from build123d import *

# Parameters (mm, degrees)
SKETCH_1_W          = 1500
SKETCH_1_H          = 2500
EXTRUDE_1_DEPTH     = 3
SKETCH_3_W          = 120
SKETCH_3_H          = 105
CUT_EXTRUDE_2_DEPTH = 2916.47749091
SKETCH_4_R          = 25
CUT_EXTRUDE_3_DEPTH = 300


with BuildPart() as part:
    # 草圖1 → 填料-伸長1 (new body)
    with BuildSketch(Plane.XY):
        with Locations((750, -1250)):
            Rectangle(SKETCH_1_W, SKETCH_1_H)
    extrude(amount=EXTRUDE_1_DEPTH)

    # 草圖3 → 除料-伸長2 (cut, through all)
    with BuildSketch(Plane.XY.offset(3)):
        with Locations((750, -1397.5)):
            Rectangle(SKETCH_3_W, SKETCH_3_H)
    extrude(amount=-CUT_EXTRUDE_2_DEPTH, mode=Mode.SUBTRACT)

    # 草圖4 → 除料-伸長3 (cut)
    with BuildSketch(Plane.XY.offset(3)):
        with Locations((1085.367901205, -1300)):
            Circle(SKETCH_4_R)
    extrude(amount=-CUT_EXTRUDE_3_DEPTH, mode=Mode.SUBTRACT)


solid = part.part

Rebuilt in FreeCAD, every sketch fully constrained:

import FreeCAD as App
import Part
import Sketcher


def add_polygon(sketch, points):
    """Adds a closed chain of lines whose ends are joined by coincident constraints."""
    first, n = sketch.GeometryCount, len(points)
    for a, b in zip(points, points[1:] + points[:1]):
        sketch.addGeometry(Part.LineSegment(App.Vector(*a, 0), App.Vector(*b, 0)), False)
    for i in range(n):
        sketch.addConstraint(Sketcher.Constraint("Coincident", first + i, 2, first + (i + 1) % n, 1))

doc = App.newDocument("Part")
body = doc.addObject("PartDesign::Body", "Body")

sketch1 = body.newObject("Sketcher::SketchObject", "Sketch")
sketch1.AttachmentSupport = (doc.getObject("XY_Plane"), [""])
sketch1.MapMode = "FlatFace"
add_polygon(sketch1, [(0, 0), (0, -2500), (1500, -2500), (1500, 0)])
sketch1.addConstraint(Sketcher.Constraint("Vertical", 0))
sketch1.addConstraint(Sketcher.Constraint("Horizontal", 1))
sketch1.addConstraint(Sketcher.Constraint("Vertical", 2))
sketch1.addConstraint(Sketcher.Constraint("Horizontal", 3))
sketch1.addConstraint(Sketcher.Constraint("Coincident", 3, 2, -1, 1))
sketch1.addConstraint(Sketcher.Constraint("DistanceX", 1, 1, 1, 2, 1500.0))
sketch1.addConstraint(Sketcher.Constraint("DistanceY", 0, 2, 0, 1, 2500.0))
pad1 = body.newObject("PartDesign::Pad", "Pad")
pad1.Profile = sketch1
pad1.Length = 3

sketch2 = body.newObject("Sketcher::SketchObject", "Sketch001")
sketch2.AttachmentSupport = (doc.getObject("XY_Plane"), [""])
sketch2.MapMode = "FlatFace"
sketch2.AttachmentOffset = App.Placement(App.Vector(0, 0, 3), App.Rotation())
add_polygon(sketch2, [(690, -1345), (690, -1450), (810, -1450), (810, -1345)])
sketch2.addConstraint(Sketcher.Constraint("Vertical", 0))
sketch2.addConstraint(Sketcher.Constraint("Horizontal", 1))
sketch2.addConstraint(Sketcher.Constraint("Vertical", 2))
sketch2.addConstraint(Sketcher.Constraint("Horizontal", 3))
sketch2.addConstraint(Sketcher.Constraint("DistanceX", 1, 1, 1, 2, 120.0))
sketch2.addConstraint(Sketcher.Constraint("DistanceY", 0, 2, 0, 1, 105.0))
sketch2.addConstraint(Sketcher.Constraint("DistanceX", -1, 1, 0, 2, 690.0))
sketch2.addConstraint(Sketcher.Constraint("DistanceY", 0, 2, -1, 1, 1450.0))
pocket1 = body.newObject("PartDesign::Pocket", "Pocket")
pocket1.Profile = sketch2
pocket1.Type = "ThroughAll"

sketch3 = body.newObject("Sketcher::SketchObject", "Sketch002")
sketch3.AttachmentSupport = (doc.getObject("XY_Plane"), [""])
sketch3.MapMode = "FlatFace"
sketch3.AttachmentOffset = App.Placement(App.Vector(0, 0, 3), App.Rotation())
sketch3.addGeometry(Part.Circle(App.Vector(1085, -1300, 0), App.Vector(0, 0, 1), 25), False)
sketch3.addConstraint(Sketcher.Constraint("Diameter", 0, 50.0))
sketch3.addConstraint(Sketcher.Constraint("DistanceY", 0, 3, -1, 1, 1300.0))
sketch3.addConstraint(Sketcher.Constraint("DistanceX", -1, 1, 0, 3, 1085.367901))
pocket2 = body.newObject("PartDesign::Pocket", "Pocket001")
pocket2.Profile = sketch3
pocket2.Length = 300

doc.recompute()
